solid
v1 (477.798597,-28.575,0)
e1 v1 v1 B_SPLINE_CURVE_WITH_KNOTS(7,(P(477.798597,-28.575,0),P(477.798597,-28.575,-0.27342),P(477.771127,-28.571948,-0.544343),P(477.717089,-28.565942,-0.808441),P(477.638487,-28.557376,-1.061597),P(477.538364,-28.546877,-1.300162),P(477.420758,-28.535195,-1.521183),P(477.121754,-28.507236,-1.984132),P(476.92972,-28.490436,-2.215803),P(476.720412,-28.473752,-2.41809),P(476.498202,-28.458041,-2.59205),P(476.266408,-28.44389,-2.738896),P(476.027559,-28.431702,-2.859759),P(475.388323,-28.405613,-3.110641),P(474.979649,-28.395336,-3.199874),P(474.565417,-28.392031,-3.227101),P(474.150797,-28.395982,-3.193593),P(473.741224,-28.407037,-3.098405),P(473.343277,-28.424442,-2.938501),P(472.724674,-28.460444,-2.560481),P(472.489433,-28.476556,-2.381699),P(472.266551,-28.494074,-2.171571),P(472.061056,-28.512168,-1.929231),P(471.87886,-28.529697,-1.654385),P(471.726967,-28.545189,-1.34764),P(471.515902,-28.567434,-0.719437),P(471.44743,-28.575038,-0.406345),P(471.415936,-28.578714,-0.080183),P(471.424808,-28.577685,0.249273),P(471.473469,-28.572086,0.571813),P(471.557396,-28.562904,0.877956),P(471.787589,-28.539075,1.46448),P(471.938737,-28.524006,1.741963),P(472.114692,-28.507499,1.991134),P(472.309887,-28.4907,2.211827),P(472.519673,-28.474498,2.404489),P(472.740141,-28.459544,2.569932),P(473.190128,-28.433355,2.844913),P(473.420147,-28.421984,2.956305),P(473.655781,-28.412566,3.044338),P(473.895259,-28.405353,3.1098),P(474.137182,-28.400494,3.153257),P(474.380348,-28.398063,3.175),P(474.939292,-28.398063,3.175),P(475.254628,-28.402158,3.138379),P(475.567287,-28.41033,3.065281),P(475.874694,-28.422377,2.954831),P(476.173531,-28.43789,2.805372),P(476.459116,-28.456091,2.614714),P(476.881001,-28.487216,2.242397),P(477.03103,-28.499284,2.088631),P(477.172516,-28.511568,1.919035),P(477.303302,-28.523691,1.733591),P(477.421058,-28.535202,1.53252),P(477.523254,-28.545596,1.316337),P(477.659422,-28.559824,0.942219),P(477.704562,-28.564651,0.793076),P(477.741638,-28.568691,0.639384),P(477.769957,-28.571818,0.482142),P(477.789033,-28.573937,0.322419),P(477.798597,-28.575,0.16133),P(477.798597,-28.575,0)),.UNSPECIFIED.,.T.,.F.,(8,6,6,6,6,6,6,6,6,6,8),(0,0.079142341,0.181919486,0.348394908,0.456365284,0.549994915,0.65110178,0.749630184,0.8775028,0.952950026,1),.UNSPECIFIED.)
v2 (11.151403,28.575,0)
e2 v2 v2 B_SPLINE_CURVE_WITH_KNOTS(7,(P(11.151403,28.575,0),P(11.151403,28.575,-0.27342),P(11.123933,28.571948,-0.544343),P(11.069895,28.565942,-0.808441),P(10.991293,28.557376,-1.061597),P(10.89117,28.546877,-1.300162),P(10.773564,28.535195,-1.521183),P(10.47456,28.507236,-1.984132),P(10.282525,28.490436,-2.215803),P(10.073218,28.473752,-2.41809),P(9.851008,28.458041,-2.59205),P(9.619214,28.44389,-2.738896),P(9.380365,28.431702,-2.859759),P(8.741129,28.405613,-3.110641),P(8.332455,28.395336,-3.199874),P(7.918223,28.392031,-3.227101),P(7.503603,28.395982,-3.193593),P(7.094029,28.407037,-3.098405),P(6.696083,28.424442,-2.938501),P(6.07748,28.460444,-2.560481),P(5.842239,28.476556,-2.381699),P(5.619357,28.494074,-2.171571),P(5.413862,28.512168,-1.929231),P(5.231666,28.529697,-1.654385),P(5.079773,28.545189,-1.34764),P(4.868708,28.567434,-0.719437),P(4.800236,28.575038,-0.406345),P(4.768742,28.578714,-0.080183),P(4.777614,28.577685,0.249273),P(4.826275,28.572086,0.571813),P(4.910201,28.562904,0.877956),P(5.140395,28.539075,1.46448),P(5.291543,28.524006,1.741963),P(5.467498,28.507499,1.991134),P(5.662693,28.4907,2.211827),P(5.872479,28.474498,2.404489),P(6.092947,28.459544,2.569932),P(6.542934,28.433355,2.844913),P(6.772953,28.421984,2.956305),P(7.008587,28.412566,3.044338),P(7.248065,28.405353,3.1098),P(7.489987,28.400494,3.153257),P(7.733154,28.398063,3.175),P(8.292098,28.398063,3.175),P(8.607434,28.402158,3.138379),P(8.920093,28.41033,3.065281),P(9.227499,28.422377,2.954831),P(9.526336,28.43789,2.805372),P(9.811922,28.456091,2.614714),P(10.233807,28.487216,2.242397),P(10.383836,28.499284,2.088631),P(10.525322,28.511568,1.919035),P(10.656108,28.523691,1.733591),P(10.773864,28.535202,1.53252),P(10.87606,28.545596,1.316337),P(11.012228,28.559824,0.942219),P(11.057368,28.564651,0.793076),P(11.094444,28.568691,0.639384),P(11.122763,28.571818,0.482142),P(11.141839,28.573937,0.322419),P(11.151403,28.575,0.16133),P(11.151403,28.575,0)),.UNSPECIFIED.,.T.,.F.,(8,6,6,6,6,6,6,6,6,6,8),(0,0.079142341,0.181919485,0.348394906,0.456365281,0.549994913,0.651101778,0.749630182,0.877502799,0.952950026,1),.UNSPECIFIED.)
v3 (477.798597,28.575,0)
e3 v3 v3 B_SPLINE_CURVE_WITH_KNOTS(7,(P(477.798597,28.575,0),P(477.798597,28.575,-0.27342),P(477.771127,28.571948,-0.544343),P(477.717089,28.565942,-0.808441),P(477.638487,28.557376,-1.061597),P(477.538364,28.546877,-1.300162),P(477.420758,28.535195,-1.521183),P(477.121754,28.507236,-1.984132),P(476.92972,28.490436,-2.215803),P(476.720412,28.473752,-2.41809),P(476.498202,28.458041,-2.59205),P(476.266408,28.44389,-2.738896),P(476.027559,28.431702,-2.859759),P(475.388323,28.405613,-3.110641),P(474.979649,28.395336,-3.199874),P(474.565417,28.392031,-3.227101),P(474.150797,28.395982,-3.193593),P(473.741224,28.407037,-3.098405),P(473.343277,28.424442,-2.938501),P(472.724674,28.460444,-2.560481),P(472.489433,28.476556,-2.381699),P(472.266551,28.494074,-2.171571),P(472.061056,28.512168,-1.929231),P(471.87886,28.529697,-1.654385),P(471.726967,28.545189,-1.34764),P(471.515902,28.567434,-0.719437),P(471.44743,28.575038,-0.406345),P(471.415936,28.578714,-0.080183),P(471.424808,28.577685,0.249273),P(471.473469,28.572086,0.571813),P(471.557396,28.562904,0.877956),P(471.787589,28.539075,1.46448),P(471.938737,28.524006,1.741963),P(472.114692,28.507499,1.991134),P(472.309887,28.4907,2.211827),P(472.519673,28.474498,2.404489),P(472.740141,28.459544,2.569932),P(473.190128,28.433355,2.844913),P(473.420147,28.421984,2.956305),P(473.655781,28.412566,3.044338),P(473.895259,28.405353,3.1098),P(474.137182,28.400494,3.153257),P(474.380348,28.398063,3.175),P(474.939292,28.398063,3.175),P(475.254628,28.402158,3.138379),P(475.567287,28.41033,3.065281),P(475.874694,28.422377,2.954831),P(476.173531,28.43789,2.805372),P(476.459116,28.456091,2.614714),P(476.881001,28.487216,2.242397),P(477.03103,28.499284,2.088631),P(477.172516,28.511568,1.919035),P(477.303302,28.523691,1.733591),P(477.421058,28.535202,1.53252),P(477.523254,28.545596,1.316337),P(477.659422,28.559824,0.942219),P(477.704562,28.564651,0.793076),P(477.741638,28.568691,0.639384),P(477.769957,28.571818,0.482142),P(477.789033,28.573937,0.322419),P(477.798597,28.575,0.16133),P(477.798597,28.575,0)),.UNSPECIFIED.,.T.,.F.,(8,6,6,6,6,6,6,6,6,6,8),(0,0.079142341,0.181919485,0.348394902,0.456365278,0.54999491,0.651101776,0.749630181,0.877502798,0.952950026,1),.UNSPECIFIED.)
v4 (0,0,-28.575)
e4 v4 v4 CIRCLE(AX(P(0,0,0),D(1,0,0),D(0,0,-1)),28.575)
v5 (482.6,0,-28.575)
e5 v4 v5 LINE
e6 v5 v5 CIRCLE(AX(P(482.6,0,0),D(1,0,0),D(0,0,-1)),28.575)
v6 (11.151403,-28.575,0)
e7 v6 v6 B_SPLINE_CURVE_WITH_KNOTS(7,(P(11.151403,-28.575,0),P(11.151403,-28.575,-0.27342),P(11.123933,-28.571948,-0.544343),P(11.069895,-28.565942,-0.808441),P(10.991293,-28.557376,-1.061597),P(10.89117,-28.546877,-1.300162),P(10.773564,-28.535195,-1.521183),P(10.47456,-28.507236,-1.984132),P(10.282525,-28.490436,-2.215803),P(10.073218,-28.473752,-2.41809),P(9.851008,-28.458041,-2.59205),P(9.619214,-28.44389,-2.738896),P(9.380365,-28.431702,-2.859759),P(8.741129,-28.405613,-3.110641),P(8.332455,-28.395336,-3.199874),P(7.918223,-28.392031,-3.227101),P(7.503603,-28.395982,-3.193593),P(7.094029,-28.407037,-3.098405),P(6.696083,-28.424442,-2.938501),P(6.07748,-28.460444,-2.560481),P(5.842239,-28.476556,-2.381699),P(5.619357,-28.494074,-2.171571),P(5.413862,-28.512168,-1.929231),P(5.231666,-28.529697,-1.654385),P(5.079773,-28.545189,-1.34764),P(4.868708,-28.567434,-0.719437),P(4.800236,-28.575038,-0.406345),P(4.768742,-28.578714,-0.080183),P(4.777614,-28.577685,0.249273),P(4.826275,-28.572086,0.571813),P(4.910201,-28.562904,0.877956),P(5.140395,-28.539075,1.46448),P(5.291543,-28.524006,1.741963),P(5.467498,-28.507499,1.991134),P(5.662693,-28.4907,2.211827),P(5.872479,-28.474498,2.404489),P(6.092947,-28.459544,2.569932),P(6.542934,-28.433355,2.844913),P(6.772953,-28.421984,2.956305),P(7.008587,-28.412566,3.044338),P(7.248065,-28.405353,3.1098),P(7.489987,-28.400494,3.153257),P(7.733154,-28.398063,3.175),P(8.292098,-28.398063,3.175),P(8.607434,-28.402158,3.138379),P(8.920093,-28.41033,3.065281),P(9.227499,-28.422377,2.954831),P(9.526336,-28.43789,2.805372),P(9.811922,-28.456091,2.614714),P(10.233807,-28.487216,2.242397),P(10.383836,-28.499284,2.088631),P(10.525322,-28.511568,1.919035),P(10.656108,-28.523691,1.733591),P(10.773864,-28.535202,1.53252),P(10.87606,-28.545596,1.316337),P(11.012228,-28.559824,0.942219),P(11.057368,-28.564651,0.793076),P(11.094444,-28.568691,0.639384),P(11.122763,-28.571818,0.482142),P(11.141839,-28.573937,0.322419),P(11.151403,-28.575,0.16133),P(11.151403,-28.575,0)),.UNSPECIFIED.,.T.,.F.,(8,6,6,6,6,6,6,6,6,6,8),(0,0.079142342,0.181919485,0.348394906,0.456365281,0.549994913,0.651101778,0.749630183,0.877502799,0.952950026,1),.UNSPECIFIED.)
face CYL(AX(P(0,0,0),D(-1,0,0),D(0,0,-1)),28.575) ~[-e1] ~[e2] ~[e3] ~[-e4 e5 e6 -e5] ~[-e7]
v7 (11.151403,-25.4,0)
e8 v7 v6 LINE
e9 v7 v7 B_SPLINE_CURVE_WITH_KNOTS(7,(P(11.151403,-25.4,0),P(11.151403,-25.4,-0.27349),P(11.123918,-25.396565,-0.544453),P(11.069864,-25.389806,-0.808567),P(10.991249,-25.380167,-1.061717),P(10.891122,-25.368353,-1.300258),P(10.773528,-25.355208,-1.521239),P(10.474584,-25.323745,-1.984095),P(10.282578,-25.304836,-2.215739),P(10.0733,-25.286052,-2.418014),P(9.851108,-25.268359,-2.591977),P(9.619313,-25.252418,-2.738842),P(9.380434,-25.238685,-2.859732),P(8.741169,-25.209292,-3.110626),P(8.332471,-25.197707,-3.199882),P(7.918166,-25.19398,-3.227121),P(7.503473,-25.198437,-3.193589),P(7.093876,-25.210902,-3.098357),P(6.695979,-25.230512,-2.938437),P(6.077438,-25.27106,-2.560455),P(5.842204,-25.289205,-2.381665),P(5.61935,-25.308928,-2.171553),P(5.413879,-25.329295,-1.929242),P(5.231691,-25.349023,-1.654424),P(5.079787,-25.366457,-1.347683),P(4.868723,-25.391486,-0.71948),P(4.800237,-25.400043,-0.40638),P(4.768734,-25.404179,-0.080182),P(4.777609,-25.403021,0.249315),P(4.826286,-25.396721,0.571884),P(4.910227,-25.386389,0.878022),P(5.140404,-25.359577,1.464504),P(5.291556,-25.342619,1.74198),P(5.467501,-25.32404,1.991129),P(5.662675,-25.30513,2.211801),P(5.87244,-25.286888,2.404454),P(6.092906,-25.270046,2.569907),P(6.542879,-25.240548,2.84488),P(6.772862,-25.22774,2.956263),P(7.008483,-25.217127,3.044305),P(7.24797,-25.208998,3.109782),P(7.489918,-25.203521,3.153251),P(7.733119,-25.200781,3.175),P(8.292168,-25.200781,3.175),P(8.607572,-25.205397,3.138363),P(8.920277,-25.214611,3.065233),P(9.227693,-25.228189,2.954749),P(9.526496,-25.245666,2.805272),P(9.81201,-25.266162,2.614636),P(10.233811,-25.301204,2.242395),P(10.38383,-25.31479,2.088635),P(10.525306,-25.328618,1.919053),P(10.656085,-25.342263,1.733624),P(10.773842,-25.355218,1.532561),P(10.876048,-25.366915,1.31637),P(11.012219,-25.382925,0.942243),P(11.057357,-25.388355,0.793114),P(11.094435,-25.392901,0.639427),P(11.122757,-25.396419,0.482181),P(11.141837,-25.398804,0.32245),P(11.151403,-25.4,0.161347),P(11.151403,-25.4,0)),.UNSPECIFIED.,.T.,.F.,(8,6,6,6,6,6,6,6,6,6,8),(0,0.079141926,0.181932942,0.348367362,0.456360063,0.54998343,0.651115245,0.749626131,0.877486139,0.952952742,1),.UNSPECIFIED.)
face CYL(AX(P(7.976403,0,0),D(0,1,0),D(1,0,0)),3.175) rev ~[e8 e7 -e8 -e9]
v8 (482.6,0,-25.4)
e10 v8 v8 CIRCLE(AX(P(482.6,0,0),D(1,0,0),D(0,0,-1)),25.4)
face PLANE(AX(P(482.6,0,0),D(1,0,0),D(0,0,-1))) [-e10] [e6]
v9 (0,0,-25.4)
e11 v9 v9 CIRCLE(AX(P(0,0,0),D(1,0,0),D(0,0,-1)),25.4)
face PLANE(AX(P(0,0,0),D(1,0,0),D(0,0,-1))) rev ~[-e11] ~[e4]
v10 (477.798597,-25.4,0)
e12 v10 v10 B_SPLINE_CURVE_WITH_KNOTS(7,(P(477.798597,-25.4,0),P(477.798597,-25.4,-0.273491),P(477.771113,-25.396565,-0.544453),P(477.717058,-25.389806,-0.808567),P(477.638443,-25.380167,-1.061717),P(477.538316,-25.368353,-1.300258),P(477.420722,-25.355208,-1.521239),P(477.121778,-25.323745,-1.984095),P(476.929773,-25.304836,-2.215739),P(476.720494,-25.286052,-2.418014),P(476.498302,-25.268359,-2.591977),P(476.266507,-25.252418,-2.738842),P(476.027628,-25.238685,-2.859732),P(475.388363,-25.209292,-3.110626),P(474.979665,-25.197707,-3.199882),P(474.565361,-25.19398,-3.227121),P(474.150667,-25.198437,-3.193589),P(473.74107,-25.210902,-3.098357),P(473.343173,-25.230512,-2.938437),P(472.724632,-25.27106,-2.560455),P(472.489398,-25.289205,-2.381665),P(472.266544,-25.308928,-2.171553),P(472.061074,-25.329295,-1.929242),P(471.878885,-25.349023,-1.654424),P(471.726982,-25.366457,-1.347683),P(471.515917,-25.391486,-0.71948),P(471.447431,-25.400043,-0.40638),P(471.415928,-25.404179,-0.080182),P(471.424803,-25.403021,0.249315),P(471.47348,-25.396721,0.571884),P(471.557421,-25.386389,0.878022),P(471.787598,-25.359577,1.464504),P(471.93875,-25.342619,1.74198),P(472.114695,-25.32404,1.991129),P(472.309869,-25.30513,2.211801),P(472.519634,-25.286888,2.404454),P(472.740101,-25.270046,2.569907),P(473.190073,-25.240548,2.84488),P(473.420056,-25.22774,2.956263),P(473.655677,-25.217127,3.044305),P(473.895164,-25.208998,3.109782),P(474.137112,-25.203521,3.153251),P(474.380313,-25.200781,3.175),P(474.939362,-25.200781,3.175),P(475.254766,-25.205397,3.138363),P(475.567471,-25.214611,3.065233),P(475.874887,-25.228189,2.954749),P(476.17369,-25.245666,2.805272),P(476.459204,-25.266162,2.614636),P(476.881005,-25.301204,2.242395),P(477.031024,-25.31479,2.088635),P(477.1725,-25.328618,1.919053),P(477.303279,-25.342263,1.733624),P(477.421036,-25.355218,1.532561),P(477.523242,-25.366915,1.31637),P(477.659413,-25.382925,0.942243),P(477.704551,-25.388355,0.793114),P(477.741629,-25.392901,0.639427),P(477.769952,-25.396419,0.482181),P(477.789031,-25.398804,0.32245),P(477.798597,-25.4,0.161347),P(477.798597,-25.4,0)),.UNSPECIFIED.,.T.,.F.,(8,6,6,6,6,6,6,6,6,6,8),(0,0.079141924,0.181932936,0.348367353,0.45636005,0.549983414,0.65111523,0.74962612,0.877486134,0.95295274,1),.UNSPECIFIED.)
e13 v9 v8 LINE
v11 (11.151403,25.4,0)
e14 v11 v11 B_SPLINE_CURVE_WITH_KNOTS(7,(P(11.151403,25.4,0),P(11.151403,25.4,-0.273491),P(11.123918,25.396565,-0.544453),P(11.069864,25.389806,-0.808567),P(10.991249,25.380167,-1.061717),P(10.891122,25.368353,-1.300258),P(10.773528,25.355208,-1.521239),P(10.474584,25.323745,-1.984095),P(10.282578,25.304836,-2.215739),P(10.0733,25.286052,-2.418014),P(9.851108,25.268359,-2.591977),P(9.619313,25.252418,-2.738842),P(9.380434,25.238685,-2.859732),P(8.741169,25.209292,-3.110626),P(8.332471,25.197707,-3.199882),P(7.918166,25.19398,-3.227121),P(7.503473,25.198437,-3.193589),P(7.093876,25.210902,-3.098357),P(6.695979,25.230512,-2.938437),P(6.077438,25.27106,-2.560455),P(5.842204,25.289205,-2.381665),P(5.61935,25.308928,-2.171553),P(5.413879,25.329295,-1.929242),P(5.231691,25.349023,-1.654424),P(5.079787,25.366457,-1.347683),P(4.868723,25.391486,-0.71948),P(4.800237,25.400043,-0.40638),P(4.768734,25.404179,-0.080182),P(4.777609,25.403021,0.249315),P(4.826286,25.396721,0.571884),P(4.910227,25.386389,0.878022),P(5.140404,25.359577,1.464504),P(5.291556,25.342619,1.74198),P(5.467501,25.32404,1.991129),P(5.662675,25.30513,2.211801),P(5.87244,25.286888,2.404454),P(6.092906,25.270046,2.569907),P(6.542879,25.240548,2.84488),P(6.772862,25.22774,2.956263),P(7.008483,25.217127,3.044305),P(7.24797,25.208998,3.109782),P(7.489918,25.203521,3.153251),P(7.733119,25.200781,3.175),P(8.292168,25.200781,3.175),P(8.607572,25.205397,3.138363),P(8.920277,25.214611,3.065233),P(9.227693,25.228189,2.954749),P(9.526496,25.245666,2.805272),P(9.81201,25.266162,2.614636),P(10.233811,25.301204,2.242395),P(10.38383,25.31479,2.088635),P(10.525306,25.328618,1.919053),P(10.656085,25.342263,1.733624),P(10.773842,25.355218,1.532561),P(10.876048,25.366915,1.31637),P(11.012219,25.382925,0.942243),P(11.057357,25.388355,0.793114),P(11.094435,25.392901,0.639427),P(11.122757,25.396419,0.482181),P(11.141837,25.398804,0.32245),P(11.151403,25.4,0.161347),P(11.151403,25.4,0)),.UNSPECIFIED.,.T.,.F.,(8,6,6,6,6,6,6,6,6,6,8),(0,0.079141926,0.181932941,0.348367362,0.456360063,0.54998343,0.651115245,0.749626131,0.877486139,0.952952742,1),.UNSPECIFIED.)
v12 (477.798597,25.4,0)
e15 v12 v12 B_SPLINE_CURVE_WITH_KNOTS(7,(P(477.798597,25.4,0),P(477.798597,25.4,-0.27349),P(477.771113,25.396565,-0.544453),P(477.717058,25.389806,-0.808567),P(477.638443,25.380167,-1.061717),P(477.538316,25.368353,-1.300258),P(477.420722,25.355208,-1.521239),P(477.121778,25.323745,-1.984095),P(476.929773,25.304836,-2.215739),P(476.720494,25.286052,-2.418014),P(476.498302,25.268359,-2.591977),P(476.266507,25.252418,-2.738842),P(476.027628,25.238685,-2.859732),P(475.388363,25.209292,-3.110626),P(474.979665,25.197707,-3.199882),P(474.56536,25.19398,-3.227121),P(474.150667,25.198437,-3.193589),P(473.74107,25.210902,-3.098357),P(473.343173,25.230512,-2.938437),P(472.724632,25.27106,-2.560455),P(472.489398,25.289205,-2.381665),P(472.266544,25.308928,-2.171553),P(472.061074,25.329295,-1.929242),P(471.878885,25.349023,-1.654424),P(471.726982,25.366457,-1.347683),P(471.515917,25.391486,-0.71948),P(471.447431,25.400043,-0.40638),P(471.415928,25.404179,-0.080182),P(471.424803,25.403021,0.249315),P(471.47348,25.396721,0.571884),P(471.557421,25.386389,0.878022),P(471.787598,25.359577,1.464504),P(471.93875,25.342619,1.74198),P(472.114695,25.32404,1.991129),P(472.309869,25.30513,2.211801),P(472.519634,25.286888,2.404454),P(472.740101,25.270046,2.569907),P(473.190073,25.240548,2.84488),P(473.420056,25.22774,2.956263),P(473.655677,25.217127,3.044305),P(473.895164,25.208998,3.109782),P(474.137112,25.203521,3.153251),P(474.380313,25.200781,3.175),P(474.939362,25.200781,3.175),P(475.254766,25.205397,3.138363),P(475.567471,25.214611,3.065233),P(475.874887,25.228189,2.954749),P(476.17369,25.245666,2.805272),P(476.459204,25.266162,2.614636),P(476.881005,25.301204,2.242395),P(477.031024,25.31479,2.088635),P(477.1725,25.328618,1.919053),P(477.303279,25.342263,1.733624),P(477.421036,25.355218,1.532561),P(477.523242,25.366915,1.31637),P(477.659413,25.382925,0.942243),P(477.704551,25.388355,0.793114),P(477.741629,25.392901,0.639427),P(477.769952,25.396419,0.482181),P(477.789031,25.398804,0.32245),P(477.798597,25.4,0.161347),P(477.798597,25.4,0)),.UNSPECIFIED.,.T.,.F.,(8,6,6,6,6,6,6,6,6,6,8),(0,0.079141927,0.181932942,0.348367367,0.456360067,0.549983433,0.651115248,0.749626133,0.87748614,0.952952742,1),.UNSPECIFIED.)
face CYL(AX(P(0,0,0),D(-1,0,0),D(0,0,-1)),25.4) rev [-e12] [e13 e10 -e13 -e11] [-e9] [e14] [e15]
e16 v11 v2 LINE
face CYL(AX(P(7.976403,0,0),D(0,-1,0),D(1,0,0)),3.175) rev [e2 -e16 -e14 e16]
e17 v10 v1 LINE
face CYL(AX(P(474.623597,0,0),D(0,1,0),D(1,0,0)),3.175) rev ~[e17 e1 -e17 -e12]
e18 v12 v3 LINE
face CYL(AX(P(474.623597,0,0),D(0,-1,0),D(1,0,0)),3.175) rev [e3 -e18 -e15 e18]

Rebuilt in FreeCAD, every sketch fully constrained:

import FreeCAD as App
import Part
import Sketcher
Q = App.Units.Quantity

doc = App.newDocument("Part")
body = doc.addObject("PartDesign::Body", "Body")

# Sketch on YZ plane
sketch1 = body.newObject("Sketcher::SketchObject", "Sketch")
sketch1.AttachmentSupport = (doc.getObject("YZ_Plane"), [""])
sketch1.MapMode = "FlatFace"
sketch1.addGeometry([
    Part.Circle(App.Vector(0, 0, 0), App.Vector(0, 0, 1), 28.575),
    Part.Circle(App.Vector(0, 0, 0), App.Vector(0, 0, 1), 25.4),
], False)
sketch1.addConstraint([
    Sketcher.Constraint("Coincident", 0, 3, -1, 1),
    Sketcher.Constraint("Coincident", 1, 3, -1, 1),
    Sketcher.Constraint("Diameter", 1, Q("2 in")),
    Sketcher.Constraint("Diameter", 0, Q("2.25 in")),
])
pad1 = body.newObject("PartDesign::Pad", "Pad")
pad1.Profile = sketch1
pad1.Length = Q("19 in")

# Sketch on XZ plane
sketch2 = body.newObject("Sketcher::SketchObject", "Sketch001")
sketch2.AttachmentSupport = (doc.getObject("XZ_Plane"), [""])
sketch2.MapMode = "FlatFace"
sketch2.addGeometry([
    Part.Circle(App.Vector(7.976403, 0, 0), App.Vector(0, 0, 1), 3.175),
    Part.Circle(App.Vector(474.623597, 0, 0), App.Vector(0, 0, 1), 3.175),
], False)
sketch2.addConstraint([
    Sketcher.Constraint("Equal", 0, 1),
    Sketcher.Constraint("PointOnObject", 0, 3, -1),
    Sketcher.Constraint("PointOnObject", 1, 3, -1),
    Sketcher.Constraint("Diameter", 0, Q("0.25 in")),
    Sketcher.Constraint("DistanceX", -1, 1, 0, 3, 7.976403),
    Sketcher.Constraint("DistanceX", -1, 1, 1, 3, 474.623597),
])
pocket1 = body.newObject("PartDesign::Pocket", "Pocket")
pocket1.Profile = sketch2
pocket1.Type = "ThroughAll"
pocket1.Midplane = True

doc.recompute()
